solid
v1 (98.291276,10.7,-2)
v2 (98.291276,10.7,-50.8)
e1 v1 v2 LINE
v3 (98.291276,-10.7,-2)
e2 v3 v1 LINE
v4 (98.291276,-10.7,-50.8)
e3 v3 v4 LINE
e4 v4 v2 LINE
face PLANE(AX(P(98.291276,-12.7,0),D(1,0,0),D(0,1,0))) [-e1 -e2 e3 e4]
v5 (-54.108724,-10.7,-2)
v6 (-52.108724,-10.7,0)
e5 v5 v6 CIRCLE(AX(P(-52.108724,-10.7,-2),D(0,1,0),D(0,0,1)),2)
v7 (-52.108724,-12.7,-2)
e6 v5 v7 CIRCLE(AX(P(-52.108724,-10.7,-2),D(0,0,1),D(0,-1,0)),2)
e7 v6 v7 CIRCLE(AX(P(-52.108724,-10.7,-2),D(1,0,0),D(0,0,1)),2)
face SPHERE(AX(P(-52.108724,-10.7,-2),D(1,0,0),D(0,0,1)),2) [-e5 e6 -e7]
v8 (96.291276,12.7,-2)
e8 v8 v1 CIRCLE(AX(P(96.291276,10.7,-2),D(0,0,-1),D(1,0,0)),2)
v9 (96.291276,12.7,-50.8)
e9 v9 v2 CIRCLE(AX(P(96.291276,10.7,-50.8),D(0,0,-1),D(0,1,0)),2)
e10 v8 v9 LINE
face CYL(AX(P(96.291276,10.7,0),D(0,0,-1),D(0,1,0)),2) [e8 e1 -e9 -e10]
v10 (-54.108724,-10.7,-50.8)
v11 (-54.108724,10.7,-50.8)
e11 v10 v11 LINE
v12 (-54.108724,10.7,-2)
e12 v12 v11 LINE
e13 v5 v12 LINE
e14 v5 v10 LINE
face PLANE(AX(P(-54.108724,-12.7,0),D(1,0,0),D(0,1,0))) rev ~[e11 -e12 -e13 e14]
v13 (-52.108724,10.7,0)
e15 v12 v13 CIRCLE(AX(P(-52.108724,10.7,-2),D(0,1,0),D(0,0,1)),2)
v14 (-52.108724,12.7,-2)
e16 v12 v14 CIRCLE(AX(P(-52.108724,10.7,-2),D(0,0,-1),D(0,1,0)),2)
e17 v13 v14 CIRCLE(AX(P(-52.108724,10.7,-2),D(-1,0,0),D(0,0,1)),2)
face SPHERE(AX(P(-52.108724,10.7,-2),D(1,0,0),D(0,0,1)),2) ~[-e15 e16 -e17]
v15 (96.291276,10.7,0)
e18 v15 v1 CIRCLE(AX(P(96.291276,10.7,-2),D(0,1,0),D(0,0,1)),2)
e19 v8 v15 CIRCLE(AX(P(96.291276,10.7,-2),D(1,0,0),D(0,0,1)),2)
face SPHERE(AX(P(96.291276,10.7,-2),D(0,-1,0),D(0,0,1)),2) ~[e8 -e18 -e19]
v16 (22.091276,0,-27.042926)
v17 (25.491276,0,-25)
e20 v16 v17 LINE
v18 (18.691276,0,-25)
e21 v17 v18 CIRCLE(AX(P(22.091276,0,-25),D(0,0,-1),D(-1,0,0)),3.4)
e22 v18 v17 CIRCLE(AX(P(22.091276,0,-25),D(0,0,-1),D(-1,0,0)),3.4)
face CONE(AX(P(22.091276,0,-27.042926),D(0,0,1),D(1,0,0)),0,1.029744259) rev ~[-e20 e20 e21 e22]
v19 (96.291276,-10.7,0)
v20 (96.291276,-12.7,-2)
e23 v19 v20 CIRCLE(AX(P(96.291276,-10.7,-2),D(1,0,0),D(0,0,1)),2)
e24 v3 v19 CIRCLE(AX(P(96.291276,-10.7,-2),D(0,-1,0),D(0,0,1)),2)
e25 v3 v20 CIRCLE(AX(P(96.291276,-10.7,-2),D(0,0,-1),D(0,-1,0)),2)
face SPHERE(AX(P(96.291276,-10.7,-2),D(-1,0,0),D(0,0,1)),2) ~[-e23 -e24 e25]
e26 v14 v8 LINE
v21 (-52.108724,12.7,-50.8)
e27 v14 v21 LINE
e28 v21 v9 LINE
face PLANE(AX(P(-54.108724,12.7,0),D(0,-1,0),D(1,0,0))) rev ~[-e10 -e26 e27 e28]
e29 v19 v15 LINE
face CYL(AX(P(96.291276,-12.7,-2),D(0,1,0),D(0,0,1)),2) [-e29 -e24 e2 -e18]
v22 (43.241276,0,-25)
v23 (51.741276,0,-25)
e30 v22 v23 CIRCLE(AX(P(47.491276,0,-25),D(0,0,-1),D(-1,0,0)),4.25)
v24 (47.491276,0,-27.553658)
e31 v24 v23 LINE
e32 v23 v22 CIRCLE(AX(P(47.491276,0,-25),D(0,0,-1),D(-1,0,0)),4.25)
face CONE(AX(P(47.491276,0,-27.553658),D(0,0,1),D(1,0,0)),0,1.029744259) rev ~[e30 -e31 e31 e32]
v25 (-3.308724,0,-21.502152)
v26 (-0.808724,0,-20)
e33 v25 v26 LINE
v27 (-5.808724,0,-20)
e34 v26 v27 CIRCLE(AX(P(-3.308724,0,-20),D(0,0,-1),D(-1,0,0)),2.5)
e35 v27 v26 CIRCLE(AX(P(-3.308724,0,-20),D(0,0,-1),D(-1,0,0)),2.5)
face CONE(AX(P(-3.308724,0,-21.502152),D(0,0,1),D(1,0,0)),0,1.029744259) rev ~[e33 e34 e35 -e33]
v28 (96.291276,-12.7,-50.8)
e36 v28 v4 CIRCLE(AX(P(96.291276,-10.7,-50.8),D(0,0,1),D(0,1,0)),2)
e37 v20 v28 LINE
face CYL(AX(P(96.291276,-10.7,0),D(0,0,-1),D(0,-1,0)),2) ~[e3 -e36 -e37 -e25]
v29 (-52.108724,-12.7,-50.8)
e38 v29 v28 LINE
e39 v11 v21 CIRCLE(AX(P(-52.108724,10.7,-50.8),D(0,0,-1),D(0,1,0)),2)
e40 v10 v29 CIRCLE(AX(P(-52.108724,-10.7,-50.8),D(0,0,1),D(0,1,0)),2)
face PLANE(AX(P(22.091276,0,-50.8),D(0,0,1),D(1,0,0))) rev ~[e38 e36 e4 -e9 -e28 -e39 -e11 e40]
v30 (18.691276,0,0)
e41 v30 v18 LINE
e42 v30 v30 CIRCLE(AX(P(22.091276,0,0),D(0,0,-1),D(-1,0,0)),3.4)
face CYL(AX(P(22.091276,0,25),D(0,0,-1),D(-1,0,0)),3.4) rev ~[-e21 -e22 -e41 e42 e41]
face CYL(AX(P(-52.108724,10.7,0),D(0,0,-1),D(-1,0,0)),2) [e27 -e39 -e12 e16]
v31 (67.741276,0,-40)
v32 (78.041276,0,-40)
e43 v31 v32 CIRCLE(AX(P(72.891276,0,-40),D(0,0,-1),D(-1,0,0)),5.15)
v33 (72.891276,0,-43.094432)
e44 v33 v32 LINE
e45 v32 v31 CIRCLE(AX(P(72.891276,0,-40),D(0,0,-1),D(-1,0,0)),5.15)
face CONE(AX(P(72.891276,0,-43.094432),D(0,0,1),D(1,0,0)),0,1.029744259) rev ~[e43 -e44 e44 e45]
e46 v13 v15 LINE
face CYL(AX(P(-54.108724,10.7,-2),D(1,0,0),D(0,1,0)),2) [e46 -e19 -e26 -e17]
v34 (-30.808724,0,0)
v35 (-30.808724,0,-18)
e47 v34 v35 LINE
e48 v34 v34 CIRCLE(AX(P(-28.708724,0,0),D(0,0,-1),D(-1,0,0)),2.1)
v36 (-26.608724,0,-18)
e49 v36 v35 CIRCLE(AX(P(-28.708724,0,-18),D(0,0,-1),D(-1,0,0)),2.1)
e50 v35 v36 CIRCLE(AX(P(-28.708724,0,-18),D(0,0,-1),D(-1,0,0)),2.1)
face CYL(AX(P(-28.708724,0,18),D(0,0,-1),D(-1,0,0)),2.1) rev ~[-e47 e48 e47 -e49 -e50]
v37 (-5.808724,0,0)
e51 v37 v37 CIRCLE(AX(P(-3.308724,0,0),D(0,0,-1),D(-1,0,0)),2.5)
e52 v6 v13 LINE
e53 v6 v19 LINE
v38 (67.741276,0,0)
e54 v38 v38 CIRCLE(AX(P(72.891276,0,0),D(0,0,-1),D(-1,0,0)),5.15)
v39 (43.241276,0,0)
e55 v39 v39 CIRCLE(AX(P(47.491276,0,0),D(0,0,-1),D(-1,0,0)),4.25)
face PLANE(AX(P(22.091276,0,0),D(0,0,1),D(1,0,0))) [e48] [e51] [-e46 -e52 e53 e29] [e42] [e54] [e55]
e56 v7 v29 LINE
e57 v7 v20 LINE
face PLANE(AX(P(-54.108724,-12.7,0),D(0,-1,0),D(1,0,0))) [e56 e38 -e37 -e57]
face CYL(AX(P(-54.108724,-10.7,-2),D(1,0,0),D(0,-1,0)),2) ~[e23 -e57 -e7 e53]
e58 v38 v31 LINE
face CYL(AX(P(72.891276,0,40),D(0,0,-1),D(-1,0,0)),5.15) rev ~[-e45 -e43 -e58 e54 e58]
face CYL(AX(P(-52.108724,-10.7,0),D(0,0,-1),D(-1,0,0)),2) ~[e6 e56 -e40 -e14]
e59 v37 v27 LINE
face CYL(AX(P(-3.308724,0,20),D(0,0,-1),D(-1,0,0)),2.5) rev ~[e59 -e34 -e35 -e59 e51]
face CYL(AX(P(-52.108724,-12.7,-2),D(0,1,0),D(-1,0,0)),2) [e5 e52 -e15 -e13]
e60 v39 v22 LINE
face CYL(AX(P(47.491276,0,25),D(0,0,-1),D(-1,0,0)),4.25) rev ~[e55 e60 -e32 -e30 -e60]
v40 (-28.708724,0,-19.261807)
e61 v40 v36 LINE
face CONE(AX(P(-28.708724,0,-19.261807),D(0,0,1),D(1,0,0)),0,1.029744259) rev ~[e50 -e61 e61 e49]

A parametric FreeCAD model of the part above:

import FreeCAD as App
import Part
import Sketcher
from FreeCAD import Vector
Q = App.Units.Quantity


def edges_at(feature, points):
    """Names of the edges that pass closest to the given points."""
    edges = feature.Shape.Edges
    near = lambda p: min(range(len(edges)), key=lambda i: edges[i].distToShape(Part.Vertex(*p))[0])
    return sorted({f"Edge{near(p) + 1}" for p in points})


def add_polygon(sketch, points):
    """Adds a closed chain of lines whose ends are joined by coincident constraints."""
    first, n = sketch.GeometryCount, len(points)
    for a, b in zip(points, points[1:] + points[:1]):
        sketch.addGeometry(Part.LineSegment(App.Vector(*a, 0), App.Vector(*b, 0)), False)
    for i in range(n):
        sketch.addConstraint(Sketcher.Constraint("Coincident", first + i, 2, first + (i + 1) % n, 1))

doc = App.newDocument("Part")
body = doc.addObject("PartDesign::Body", "Body")

# Sketch on XY plane
sketch1 = doc.addObject("Sketcher::SketchObject", "Sketch")
body.addObject(sketch1)
sketch1.AttachmentSupport = (doc.XY_Plane, [""])
sketch1.MapMode = "FlatFace"
add_polygon(sketch1, [(-54, 13), (-54, -13), (98, -13), (98, 13)])  # lines 0-3
sketch1.addConstraint([
    Sketcher.Constraint("Vertical", 0),
    Sketcher.Constraint("Horizontal", 1),
    Sketcher.Constraint("Vertical", 2),
    Sketcher.Constraint("Horizontal", 3),
    Sketcher.Constraint("DistanceX", 1, 1, 1, 2, Q("152.4 mm")),
    Sketcher.Constraint("DistanceY", 0, 2, 0, 1, Q("25.4 mm")),
    Sketcher.Constraint("DistanceY", 0, 2, -1, 1, Q("12.7 mm")),
    Sketcher.Constraint("DistanceX", 0, 2, -1, 1, Q("54.108724 mm")),
])
pad1 = doc.addObject("PartDesign::Pad", "Pad")
body.addObject(pad1)
pad1.Profile = sketch1
pad1.Length = 50.8
pad1.Reversed = True

# Sketch on XY plane
sketch2 = doc.addObject("Sketcher::SketchObject", "Sketch001")
body.addObject(sketch2)
sketch2.AttachmentSupport = (doc.XY_Plane, [""])
sketch2.MapMode = "FlatFace"
sketch2.addGeometry(Part.Circle(Vector(-28.7, 0, 0), Vector(0, 0, 1), 2.1), False)
sketch2.addConstraint([
    Sketcher.Constraint("PointOnObject", 0, 3, -1),
    Sketcher.Constraint("Diameter", 0, Q("4.2 mm")),
    Sketcher.Constraint("DistanceX", 0, 3, -1, 1, Q("28.708724 mm")),
])
doc.recompute()
hole = doc.addObject("PartDesign::Hole", "Hole")
body.addObject(hole)
hole.Profile = sketch2
hole.ThreadType = "None"
hole.Diameter = 4.2
hole.DepthType = "Dimension"
hole.Depth = 18
hole.DrillPoint = "Angled"
hole.DrillPointAngle = 118

# Sketch on XY plane
sketch3 = doc.addObject("Sketcher::SketchObject", "Sketch002")
body.addObject(sketch3)
sketch3.AttachmentSupport = (doc.XY_Plane, [""])
sketch3.MapMode = "FlatFace"
sketch3.addGeometry(Part.Circle(Vector(-3.3, 0, 0), Vector(0, 0, 1), 2.5), False)
sketch3.addConstraint([
    Sketcher.Constraint("PointOnObject", 0, 3, -1),
    Sketcher.Constraint("Diameter", 0, Q("5 mm")),
    Sketcher.Constraint("DistanceX", 0, 3, -1, 1, Q("3.308724 mm")),
])
doc.recompute()
hole2 = doc.addObject("PartDesign::Hole", "Hole001")
body.addObject(hole2)
hole2.Profile = sketch3
hole2.ThreadType = "None"
hole2.Diameter = 5
hole2.DepthType = "Dimension"
hole2.Depth = 20
hole2.DrillPoint = "Angled"
hole2.DrillPointAngle = 118

# Sketch on XY plane
sketch4 = doc.addObject("Sketcher::SketchObject", "Sketch003")
body.addObject(sketch4)
sketch4.AttachmentSupport = (doc.XY_Plane, [""])
sketch4.MapMode = "FlatFace"
sketch4.addGeometry(Part.Circle(Vector(22.1, 0, 0), Vector(0, 0, 1), 3.4), False)
sketch4.addConstraint([
    Sketcher.Constraint("PointOnObject", 0, 3, -1),
    Sketcher.Constraint("Diameter", 0, Q("6.8 mm")),
    Sketcher.Constraint("DistanceX", -1, 1, 0, 3, Q("22.091276 mm")),
])
doc.recompute()
hole3 = doc.addObject("PartDesign::Hole", "Hole002")
body.addObject(hole3)
hole3.Profile = sketch4
hole3.ThreadType = "None"
hole3.Diameter = 6.8
hole3.DepthType = "Dimension"
hole3.Depth = 25
hole3.DrillPoint = "Angled"
hole3.DrillPointAngle = 118

# Sketch on XY plane
sketch5 = doc.addObject("Sketcher::SketchObject", "Sketch004")
body.addObject(sketch5)
sketch5.AttachmentSupport = (doc.XY_Plane, [""])
sketch5.MapMode = "FlatFace"
sketch5.addGeometry(Part.Circle(Vector(47.5, 0, 0), Vector(0, 0, 1), 4.2), False)
sketch5.addConstraint([
    Sketcher.Constraint("PointOnObject", 0, 3, -1),
    Sketcher.Constraint("Diameter", 0, Q("8.5 mm")),
    Sketcher.Constraint("DistanceX", -1, 1, 0, 3, Q("47.491276 mm")),
])
doc.recompute()
hole4 = doc.addObject("PartDesign::Hole", "Hole003")
body.addObject(hole4)
hole4.Profile = sketch5
hole4.ThreadType = "None"
hole4.Diameter = 8.5
hole4.DepthType = "Dimension"
hole4.Depth = 25
hole4.DrillPoint = "Angled"
hole4.DrillPointAngle = 118

# Sketch on XY plane
sketch6 = doc.addObject("Sketcher::SketchObject", "Sketch005")
body.addObject(sketch6)
sketch6.AttachmentSupport = (doc.XY_Plane, [""])
sketch6.MapMode = "FlatFace"
sketch6.addGeometry(Part.Circle(Vector(73, 0, 0), Vector(0, 0, 1), 5), False)
sketch6.addConstraint([
    Sketcher.Constraint("PointOnObject", 0, 3, -1),
    Sketcher.Constraint("Diameter", 0, Q("10.3 mm")),
    Sketcher.Constraint("DistanceX", -1, 1, 0, 3, Q("72.891276 mm")),
])
doc.recompute()
hole5 = doc.addObject("PartDesign::Hole", "Hole004")
body.addObject(hole5)
hole5.Profile = sketch6
hole5.ThreadType = "None"
hole5.Diameter = 10.3
hole5.DepthType = "Dimension"
hole5.Depth = 40
hole5.DrillPoint = "Angled"
hole5.DrillPointAngle = 118
doc.recompute()

fillet = doc.addObject("PartDesign::Fillet", "Fillet")
body.addObject(fillet)
fillet.Base = (hole5, edges_at(hole5, [
    (22.091, -12.7, 0),
    (98.291, 0, 0),
    (22.091, 12.7, 0),
    (-54.109, 0, 0),
    (98.291, 12.7, -25.4),
    (98.291, -12.7, -25.4),
    (-54.109, 12.7, -25.4),
    (-54.109, -12.7, -25.4),
]))
fillet.Radius = 2

doc.recompute()
